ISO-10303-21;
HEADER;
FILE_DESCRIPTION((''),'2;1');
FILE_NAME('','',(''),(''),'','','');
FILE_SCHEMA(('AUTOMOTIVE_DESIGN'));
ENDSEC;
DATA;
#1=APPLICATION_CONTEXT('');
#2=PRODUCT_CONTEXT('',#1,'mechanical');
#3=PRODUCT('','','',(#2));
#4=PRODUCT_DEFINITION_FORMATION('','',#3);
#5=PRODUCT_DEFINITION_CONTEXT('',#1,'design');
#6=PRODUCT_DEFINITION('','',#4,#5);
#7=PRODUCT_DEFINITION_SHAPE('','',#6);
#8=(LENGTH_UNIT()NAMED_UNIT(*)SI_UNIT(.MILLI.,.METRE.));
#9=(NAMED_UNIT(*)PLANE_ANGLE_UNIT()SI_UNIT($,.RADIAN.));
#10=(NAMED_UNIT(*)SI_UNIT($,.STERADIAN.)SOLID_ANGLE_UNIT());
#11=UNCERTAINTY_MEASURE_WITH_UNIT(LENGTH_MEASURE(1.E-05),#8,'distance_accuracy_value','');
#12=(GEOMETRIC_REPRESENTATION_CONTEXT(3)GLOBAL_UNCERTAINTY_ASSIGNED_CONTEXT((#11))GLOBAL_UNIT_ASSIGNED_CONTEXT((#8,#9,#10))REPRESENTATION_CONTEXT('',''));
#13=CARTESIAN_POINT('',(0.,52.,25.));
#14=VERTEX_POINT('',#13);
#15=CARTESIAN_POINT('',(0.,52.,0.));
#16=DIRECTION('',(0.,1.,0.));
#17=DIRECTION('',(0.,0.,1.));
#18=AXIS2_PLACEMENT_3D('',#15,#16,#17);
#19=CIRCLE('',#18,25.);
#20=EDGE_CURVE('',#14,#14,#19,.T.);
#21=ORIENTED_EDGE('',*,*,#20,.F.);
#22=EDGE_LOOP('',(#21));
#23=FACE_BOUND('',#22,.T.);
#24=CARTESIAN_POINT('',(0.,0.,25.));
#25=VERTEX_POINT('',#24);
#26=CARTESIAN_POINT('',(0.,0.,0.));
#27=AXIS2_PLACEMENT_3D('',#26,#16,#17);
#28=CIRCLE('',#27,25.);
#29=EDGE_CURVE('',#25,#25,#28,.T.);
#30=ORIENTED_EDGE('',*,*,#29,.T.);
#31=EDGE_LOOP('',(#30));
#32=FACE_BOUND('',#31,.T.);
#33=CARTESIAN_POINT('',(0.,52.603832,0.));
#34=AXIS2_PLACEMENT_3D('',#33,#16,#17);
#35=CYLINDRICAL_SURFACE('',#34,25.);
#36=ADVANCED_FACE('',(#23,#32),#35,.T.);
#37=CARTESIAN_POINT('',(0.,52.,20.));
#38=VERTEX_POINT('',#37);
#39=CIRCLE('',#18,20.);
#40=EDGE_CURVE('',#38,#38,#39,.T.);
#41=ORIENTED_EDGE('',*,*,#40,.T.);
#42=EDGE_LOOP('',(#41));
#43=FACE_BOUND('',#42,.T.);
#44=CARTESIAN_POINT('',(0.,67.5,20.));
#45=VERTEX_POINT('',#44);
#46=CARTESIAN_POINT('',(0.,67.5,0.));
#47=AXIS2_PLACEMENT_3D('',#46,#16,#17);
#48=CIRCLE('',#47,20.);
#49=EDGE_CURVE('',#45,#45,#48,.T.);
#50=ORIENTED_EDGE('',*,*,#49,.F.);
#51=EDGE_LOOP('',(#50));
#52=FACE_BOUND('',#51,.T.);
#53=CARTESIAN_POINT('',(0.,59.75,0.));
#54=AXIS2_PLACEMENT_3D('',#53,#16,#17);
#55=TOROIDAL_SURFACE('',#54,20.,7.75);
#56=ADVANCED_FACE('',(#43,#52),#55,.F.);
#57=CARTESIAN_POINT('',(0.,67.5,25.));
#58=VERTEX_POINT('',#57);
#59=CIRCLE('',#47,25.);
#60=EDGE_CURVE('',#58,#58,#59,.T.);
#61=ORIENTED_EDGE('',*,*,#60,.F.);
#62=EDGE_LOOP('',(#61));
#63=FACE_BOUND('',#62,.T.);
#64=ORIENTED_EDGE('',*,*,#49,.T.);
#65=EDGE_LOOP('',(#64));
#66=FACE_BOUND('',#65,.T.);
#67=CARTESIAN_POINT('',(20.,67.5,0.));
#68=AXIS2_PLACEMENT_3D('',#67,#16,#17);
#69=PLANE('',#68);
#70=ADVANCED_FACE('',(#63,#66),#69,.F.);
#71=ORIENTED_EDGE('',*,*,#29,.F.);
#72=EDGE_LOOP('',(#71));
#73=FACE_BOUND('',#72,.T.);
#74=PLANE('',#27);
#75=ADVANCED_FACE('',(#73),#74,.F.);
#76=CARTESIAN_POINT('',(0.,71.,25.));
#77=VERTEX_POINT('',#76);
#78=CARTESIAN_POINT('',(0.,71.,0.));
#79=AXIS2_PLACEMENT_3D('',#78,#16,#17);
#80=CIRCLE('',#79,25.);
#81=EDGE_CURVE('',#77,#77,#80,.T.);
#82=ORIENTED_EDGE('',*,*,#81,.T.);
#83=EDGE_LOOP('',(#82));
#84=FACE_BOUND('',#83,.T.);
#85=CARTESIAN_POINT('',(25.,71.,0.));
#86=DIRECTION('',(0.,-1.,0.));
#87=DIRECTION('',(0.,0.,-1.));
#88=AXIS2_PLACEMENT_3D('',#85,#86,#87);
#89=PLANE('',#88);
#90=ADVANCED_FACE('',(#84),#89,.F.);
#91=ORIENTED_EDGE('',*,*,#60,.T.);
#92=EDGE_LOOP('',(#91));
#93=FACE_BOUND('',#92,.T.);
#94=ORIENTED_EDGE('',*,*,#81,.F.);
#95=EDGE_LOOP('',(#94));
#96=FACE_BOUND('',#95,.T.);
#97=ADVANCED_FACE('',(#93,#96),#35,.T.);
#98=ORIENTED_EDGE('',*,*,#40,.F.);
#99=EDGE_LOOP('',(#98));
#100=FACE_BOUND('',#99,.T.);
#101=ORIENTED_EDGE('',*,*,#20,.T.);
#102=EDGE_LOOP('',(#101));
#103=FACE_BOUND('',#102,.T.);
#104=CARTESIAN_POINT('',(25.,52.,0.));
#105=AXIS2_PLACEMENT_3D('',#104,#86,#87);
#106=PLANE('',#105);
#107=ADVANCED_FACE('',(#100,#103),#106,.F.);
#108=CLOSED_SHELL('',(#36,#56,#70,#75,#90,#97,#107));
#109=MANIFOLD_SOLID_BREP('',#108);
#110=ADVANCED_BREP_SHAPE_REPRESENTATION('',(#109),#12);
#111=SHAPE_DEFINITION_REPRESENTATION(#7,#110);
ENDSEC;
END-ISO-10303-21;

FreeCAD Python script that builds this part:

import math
import FreeCAD as App
import Part
import Sketcher
from FreeCAD import Vector

doc = App.newDocument("Part")
body = doc.addObject("PartDesign::Body", "Body")

sketch1 = body.newObject("Sketcher::SketchObject", "Sketch")
sketch1.AttachmentSupport = (doc.getObject("XY_Plane"), [""])
sketch1.MapMode = "FlatFace"
sketch1.addGeometry([
    Part.LineSegment(Vector(0, 0, 0), Vector(25, 0, 0)),
    Part.LineSegment(Vector(25, 0, 0), Vector(25, 52, 0)),
    Part.LineSegment(Vector(25, 52, 0), Vector(20, 52, 0)),
    Part.ArcOfCircle(Part.Circle(Vector(20, 59.8, 0), Vector(0, 0, 1), 7.8), math.radians(90), math.radians(270)),
    Part.LineSegment(Vector(20, 67.5, 0), Vector(25, 67.5, 0)),
    Part.LineSegment(Vector(25, 67.5, 0), Vector(25, 71, 0)),
    Part.LineSegment(Vector(25, 71, 0), Vector(0, 71, 0)),
    Part.LineSegment(Vector(0, 71, 0), Vector(0, 0, 0)),
], False)
sketch1.addConstraint([
    Sketcher.Constraint("Coincident", 0, 2, 1, 1),
    Sketcher.Constraint("Coincident", 1, 2, 2, 1),
    Sketcher.Constraint("Tangent", 2, 2, 3, 2),
    Sketcher.Constraint("Tangent", 3, 1, 4, 1),
    Sketcher.Constraint("Coincident", 4, 2, 5, 1),
    Sketcher.Constraint("Coincident", 5, 2, 6, 1),
    Sketcher.Constraint("Coincident", 6, 2, 7, 1),
    Sketcher.Constraint("Coincident", 7, 2, 0, 1),
    Sketcher.Constraint("Horizontal", 0),
    Sketcher.Constraint("Vertical", 1),
    Sketcher.Constraint("Horizontal", 2),
    Sketcher.Constraint("Horizontal", 4),
    Sketcher.Constraint("Vertical", 5),
    Sketcher.Constraint("Horizontal", 6),
    Sketcher.Constraint("Vertical", 7),
    Sketcher.Constraint("Coincident", 7, 2, -1, 1),
    Sketcher.Constraint("Vertical", 1, 2, 4, 2),
    Sketcher.Constraint("DistanceX", 0, 1, 0, 2, 25.0),
    Sketcher.Constraint("DistanceX", 2, 2, 2, 1, 5.0),
    Sketcher.Constraint("DistanceY", 1, 1, 1, 2, 52.0),
    Sketcher.Constraint("DistanceY", 7, 2, 7, 1, 71.0),
    Sketcher.Constraint("Radius", 3, 7.75),
])
revolution = body.newObject("PartDesign::Revolution", "Revolution")
revolution.Profile = sketch1
revolution.ReferenceAxis = (sketch1, ["V_Axis"])
revolution.Angle = 360

doc.recompute()
